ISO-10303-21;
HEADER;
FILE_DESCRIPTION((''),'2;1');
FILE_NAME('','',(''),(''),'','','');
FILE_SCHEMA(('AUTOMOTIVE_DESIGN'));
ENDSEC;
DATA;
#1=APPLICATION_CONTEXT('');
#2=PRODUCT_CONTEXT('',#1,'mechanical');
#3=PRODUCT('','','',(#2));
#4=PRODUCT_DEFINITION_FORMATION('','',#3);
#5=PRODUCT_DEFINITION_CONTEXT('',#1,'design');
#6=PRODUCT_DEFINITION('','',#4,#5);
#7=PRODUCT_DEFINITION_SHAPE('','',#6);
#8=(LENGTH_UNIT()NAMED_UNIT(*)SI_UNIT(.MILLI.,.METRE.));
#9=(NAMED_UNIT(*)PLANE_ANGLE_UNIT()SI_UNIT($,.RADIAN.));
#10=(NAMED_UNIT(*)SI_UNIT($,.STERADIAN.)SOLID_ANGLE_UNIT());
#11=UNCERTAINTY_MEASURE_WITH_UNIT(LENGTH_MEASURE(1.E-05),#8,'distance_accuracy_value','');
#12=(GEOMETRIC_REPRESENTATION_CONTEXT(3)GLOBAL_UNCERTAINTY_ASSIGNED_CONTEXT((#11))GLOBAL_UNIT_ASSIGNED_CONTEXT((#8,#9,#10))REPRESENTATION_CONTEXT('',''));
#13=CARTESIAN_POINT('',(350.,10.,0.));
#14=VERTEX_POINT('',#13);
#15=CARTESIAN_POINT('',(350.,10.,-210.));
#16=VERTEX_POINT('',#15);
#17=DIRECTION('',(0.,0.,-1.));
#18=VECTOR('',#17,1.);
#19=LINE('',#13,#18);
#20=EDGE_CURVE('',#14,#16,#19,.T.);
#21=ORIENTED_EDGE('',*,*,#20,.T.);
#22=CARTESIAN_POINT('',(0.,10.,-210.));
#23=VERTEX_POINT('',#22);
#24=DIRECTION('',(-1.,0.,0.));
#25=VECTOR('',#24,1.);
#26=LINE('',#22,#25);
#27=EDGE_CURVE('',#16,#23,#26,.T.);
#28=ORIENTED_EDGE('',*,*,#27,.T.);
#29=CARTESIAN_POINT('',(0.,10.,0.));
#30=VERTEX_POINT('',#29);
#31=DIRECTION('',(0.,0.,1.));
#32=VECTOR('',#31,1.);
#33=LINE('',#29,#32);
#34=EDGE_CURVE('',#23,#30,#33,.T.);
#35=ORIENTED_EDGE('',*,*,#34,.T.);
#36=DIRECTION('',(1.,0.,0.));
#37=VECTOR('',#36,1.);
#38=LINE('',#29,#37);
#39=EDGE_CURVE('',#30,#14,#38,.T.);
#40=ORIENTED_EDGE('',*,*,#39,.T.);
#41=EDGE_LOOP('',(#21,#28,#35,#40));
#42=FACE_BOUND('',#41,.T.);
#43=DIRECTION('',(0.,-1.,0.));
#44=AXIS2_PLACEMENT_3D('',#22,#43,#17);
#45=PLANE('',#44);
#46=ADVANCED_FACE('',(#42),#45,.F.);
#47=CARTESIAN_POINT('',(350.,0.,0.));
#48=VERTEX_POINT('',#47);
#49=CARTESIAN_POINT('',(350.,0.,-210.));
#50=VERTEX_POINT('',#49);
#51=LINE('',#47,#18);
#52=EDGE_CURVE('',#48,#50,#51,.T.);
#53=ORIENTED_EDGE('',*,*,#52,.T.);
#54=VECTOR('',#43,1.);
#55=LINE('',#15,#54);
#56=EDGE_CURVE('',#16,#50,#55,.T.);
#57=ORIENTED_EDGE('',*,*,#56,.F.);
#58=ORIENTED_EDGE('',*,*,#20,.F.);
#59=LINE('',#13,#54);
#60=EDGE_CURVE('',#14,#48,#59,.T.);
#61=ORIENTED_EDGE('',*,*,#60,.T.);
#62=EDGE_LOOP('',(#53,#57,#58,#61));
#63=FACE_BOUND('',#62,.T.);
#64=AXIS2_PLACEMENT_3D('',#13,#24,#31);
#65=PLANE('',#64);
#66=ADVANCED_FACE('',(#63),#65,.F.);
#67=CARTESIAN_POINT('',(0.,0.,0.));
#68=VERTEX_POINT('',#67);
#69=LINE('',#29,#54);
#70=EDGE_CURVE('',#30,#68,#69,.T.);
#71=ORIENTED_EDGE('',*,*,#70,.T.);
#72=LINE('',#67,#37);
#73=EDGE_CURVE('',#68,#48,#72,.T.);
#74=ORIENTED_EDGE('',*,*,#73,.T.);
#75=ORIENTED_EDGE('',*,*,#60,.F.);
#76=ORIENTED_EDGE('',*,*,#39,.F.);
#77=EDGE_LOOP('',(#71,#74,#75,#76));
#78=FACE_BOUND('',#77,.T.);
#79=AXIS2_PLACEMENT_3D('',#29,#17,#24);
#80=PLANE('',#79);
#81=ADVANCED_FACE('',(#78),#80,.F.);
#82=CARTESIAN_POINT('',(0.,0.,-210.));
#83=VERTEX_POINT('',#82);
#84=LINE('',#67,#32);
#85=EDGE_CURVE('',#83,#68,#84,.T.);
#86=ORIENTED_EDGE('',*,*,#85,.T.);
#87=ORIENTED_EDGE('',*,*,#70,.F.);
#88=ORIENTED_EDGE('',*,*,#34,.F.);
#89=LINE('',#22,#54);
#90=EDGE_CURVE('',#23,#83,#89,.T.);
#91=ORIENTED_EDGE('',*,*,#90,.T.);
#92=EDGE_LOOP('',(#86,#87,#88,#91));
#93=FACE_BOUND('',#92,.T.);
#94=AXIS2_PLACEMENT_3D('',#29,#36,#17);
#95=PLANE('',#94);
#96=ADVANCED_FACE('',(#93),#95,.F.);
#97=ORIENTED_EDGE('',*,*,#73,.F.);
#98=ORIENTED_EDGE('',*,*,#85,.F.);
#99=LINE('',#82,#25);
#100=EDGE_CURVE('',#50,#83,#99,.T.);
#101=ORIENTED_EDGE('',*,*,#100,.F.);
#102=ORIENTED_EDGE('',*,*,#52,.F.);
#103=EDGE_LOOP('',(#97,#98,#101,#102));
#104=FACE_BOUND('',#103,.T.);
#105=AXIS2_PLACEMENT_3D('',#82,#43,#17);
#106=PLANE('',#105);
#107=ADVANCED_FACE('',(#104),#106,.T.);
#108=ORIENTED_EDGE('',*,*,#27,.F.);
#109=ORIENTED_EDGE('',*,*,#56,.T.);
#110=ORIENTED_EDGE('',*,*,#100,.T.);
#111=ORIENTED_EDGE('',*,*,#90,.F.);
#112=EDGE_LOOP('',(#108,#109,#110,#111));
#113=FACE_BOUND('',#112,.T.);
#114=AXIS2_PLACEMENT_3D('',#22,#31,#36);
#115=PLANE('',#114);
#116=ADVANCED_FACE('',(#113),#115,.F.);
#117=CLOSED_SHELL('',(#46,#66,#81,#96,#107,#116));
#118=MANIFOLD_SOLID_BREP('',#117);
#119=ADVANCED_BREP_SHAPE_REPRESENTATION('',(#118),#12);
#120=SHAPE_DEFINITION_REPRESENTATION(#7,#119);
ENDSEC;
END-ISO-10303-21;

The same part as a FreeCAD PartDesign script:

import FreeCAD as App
import Part
import Sketcher

V = App.Vector


def add_polygon(sketch, points):
    """Adds a closed chain of lines whose ends are joined by coincident constraints."""
    first, n = sketch.GeometryCount, len(points)
    for a, b in zip(points, points[1:] + points[:1]):
        sketch.addGeometry(Part.LineSegment(App.Vector(*a, 0), App.Vector(*b, 0)), False)
    for i in range(n):
        sketch.addConstraint(Sketcher.Constraint("Coincident", first + i, 2, first + (i + 1) % n, 1))

doc = App.newDocument("Part")
body = doc.addObject("PartDesign::Body", "Body")

# Sketch on XZ plane
sketch1 = doc.addObject("Sketcher::SketchObject", "Sketch")
body.addObject(sketch1)
sketch1.AttachmentSupport = (doc.XZ_Plane, [""])
sketch1.MapMode = "FlatFace"
add_polygon(sketch1, [(0, -210), (0, 0), (350, 0), (350, -210)])  # lines 0-3
sketch1.addConstraint(Sketcher.Constraint("Vertical", 0))
sketch1.addConstraint(Sketcher.Constraint("Horizontal", 1))
sketch1.addConstraint(Sketcher.Constraint("Vertical", 2))
sketch1.addConstraint(Sketcher.Constraint("Horizontal", 3))
sketch1.addConstraint(Sketcher.Constraint("Coincident", 0, 2, -1, 1))
sketch1.addConstraint(Sketcher.Constraint("DistanceX", 1, 1, 1, 2, 350.0))
sketch1.addConstraint(Sketcher.Constraint("DistanceY", 0, 1, 0, 2, 210.0))
pad1 = doc.addObject("PartDesign::Pad", "Pad")
body.addObject(pad1)
pad1.Profile = sketch1
pad1.Length = 10
pad1.Reversed = True

doc.recompute()
